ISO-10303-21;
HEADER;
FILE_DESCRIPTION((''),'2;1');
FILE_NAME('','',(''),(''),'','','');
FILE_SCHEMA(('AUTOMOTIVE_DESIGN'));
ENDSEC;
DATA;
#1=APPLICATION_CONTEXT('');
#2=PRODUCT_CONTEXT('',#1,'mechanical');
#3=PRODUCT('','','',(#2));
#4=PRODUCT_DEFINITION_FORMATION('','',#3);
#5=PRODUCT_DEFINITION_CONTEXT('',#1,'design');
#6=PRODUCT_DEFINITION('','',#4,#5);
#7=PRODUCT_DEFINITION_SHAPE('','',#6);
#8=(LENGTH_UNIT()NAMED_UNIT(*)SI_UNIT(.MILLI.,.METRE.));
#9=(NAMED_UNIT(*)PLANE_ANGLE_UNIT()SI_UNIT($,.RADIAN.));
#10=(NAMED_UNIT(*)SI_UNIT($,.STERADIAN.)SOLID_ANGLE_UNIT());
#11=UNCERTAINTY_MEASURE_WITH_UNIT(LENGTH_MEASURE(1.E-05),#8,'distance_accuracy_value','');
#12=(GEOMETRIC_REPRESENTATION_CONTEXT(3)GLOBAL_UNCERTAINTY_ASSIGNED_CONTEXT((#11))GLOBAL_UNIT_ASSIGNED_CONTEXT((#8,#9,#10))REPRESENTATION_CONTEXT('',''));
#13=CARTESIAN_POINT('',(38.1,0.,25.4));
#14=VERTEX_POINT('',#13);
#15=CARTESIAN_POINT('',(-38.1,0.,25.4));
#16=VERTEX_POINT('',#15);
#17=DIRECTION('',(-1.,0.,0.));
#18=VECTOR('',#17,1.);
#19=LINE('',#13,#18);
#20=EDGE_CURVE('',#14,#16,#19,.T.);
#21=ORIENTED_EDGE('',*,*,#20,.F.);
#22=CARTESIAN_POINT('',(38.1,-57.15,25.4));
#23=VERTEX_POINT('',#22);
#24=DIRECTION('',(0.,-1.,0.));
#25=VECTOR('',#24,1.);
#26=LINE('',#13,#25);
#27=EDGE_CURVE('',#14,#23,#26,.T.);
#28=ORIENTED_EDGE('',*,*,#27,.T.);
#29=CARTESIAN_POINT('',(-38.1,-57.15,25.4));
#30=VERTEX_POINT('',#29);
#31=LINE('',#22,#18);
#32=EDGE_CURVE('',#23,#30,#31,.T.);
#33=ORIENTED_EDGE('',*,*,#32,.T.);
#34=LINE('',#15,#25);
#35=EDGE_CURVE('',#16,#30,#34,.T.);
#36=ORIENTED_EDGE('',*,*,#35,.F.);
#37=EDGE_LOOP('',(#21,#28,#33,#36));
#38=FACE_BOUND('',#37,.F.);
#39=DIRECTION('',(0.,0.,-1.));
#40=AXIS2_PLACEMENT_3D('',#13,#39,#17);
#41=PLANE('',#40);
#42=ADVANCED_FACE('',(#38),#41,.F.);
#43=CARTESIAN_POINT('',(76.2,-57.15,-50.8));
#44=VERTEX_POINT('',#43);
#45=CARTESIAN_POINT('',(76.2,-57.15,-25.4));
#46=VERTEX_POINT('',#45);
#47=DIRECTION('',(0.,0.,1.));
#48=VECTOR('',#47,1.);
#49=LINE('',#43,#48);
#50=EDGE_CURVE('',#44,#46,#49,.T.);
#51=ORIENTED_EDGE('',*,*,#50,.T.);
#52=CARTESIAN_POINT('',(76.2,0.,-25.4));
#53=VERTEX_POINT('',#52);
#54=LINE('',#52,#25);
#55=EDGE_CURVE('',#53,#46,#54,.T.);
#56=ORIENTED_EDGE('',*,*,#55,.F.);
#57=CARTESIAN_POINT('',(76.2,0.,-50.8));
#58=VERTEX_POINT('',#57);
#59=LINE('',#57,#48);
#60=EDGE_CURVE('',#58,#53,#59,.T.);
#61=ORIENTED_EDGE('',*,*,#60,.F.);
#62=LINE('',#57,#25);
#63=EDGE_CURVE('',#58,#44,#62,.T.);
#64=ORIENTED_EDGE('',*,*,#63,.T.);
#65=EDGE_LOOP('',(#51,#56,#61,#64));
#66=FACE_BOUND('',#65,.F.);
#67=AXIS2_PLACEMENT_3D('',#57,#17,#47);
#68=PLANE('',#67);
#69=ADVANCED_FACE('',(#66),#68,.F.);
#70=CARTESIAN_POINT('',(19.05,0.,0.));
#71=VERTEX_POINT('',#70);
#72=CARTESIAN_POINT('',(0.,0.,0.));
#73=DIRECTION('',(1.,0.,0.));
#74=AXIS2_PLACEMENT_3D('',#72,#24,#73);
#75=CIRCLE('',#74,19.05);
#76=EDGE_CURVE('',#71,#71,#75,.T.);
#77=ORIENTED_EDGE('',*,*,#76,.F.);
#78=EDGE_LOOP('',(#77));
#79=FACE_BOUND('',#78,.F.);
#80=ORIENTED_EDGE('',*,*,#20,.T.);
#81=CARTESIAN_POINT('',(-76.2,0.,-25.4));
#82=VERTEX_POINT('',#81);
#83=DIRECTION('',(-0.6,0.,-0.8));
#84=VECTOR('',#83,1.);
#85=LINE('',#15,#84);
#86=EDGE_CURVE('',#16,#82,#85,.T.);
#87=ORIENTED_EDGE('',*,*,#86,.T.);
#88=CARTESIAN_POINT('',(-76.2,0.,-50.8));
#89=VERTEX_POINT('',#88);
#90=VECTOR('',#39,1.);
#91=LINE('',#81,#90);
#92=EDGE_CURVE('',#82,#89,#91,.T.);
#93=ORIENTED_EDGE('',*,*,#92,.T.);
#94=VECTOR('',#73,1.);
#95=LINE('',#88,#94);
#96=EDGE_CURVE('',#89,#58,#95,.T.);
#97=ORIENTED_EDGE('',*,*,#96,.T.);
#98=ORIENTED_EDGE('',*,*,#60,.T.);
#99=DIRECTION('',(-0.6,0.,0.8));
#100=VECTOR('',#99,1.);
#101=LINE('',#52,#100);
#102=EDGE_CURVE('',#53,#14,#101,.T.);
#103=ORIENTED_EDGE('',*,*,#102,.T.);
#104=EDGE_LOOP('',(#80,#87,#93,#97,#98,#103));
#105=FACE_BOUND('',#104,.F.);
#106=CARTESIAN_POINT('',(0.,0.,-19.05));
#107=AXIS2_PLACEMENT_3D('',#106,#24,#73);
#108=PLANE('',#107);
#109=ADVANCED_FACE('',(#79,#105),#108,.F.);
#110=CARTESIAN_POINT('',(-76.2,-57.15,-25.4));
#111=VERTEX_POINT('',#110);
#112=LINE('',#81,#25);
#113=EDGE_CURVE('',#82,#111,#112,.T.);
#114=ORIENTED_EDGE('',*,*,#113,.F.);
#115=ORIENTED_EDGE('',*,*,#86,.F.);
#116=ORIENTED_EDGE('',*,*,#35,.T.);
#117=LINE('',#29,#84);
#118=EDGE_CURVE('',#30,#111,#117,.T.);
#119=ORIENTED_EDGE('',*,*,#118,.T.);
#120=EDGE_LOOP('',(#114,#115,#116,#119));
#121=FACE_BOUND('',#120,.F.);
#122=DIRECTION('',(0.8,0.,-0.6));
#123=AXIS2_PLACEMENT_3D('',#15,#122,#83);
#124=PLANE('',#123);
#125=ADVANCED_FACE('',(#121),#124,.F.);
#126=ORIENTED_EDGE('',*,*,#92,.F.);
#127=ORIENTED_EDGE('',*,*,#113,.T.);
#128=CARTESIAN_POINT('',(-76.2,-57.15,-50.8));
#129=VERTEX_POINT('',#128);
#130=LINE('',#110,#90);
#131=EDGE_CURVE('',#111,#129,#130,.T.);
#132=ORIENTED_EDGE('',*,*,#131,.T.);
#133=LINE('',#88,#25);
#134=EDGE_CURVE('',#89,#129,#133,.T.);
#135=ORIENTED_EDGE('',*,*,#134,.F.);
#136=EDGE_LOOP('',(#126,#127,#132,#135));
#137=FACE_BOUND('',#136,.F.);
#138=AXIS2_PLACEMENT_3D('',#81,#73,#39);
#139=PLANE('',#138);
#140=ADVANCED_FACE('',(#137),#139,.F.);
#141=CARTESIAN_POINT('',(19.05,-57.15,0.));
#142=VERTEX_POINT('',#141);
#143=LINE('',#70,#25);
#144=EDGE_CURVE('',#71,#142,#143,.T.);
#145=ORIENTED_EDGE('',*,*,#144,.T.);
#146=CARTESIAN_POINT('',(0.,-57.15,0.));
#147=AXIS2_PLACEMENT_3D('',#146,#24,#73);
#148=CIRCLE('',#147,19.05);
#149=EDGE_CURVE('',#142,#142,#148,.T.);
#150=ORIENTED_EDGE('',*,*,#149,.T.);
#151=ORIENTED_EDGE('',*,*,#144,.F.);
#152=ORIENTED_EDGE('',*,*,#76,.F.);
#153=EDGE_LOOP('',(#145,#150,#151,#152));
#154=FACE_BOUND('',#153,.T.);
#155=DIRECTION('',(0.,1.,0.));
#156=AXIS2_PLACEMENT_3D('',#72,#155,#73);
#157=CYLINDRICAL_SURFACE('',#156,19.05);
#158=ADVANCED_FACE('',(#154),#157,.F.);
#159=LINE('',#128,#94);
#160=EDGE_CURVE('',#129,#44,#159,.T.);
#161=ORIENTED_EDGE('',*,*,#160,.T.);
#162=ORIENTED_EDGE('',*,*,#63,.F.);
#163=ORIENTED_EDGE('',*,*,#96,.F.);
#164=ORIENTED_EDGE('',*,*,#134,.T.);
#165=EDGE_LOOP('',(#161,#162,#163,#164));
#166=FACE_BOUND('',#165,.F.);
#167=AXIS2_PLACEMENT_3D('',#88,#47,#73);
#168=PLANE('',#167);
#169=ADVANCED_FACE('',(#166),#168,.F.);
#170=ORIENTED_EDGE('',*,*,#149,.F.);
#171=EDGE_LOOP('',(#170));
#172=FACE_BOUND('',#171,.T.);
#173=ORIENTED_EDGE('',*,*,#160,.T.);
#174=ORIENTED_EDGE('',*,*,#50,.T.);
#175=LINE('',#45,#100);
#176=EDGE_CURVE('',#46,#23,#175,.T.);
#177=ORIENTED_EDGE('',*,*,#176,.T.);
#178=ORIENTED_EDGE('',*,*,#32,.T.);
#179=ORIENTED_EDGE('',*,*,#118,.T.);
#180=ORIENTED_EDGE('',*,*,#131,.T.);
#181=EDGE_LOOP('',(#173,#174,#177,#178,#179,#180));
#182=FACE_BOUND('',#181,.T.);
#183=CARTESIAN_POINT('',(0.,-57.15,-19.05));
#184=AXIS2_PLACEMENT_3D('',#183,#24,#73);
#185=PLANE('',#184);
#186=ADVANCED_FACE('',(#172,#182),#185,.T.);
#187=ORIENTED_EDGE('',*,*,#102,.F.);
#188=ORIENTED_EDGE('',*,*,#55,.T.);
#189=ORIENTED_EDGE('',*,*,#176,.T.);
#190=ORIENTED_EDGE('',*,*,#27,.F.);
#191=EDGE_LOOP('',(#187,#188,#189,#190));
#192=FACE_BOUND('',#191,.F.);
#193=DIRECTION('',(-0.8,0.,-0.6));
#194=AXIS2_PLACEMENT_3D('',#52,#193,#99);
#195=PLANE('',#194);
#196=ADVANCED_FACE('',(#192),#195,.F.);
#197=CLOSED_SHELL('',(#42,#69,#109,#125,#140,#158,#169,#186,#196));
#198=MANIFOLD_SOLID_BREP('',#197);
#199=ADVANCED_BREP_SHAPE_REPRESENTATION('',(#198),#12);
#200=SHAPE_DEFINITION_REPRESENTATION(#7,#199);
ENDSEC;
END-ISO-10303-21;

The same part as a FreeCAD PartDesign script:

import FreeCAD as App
import Part
import Sketcher
from FreeCAD import Vector
Q = App.Units.Quantity

doc = App.newDocument("Part")
params = doc.addObject("Spreadsheet::Sheet", "Params")
for row, (alias, value) in enumerate([
    ("sketch1_diameter", "1.5 in"),
    ("sketch1_width", "6 in"),
    ("sketch1_width2", "3 in"),
    ("sketch1_height", "1 in"),
    ("pad1_length", "2.25 in"),
], start=1):
    params.set(f"A{row}", alias)
    params.set(f"B{row}", "=" + value)
    params.setAlias(f"B{row}", alias)

body = doc.addObject("PartDesign::Body", "Body")

# Sketch on XZ plane
sketch1 = body.newObject("Sketcher::SketchObject", "Sketch")
sketch1.AttachmentSupport = (doc.getObject("XZ_Plane"), [""])
sketch1.MapMode = "FlatFace"
sketch1.addGeometry([
    Part.LineSegment(Vector(-76, -25, 0), Vector(-76, -51, 0)),  # 0
    Part.LineSegment(Vector(-76, -51, 0), Vector(76, -51, 0)),  # 1
    Part.LineSegment(Vector(76, -51, 0), Vector(76, -25, 0)),  # 2
    Part.LineSegment(Vector(76, -25, 0), Vector(38, 25, 0)),  # 3
    Part.LineSegment(Vector(38, 25, 0), Vector(-38, 25, 0)),  # 4
    Part.LineSegment(Vector(-38, 25, 0), Vector(-76, -25, 0)),  # 5
    Part.Circle(Vector(0, 0, 0), Vector(0, 0, 1), 19),  # 6
], False)
sketch1.addConstraint([
    Sketcher.Constraint("Coincident", 0, 2, 1, 1),
    Sketcher.Constraint("Coincident", 1, 2, 2, 1),
    Sketcher.Constraint("Coincident", 2, 2, 3, 1),
    Sketcher.Constraint("Coincident", 3, 2, 4, 1),
    Sketcher.Constraint("Coincident", 4, 2, 5, 1),
    Sketcher.Constraint("Coincident", 5, 2, 0, 1),
    Sketcher.Constraint("Vertical", 0),
    Sketcher.Constraint("Horizontal", 1),
    Sketcher.Constraint("Vertical", 2),
    Sketcher.Constraint("Horizontal", 4),
    Sketcher.Constraint("Coincident", 6, 3, -1, 1),
    Sketcher.Constraint("Symmetric", 2, 2, 5, 2, -2),
    Sketcher.Constraint("Equal", 3, 5),
    Sketcher.Constraint("Diameter", 6, Q("1.5 in")),
    Sketcher.Constraint("DistanceX", 1, 1, 1, 2, Q("6 in")),
    Sketcher.Constraint("DistanceX", 4, 2, 4, 1, Q("3 in")),
    Sketcher.Constraint("DistanceY", 0, 2, 0, 1, Q("1 in")),
    Sketcher.Constraint("DistanceY", 0, 2, -1, 1, Q("2 in")),
    Sketcher.Constraint("DistanceY", -1, 1, 3, 2, Q("1 in")),
])
sketch1.setExpression("Constraints[13]", "Params.sketch1_diameter")
sketch1.setExpression("Constraints[14]", "Params.sketch1_width")
sketch1.setExpression("Constraints[15]", "Params.sketch1_width2")
sketch1.setExpression("Constraints[16]", "Params.sketch1_height")
pad1 = body.newObject("PartDesign::Pad", "Pad")
pad1.Profile = sketch1
pad1.setExpression("Length", "Params.pad1_length")

doc.recompute()
